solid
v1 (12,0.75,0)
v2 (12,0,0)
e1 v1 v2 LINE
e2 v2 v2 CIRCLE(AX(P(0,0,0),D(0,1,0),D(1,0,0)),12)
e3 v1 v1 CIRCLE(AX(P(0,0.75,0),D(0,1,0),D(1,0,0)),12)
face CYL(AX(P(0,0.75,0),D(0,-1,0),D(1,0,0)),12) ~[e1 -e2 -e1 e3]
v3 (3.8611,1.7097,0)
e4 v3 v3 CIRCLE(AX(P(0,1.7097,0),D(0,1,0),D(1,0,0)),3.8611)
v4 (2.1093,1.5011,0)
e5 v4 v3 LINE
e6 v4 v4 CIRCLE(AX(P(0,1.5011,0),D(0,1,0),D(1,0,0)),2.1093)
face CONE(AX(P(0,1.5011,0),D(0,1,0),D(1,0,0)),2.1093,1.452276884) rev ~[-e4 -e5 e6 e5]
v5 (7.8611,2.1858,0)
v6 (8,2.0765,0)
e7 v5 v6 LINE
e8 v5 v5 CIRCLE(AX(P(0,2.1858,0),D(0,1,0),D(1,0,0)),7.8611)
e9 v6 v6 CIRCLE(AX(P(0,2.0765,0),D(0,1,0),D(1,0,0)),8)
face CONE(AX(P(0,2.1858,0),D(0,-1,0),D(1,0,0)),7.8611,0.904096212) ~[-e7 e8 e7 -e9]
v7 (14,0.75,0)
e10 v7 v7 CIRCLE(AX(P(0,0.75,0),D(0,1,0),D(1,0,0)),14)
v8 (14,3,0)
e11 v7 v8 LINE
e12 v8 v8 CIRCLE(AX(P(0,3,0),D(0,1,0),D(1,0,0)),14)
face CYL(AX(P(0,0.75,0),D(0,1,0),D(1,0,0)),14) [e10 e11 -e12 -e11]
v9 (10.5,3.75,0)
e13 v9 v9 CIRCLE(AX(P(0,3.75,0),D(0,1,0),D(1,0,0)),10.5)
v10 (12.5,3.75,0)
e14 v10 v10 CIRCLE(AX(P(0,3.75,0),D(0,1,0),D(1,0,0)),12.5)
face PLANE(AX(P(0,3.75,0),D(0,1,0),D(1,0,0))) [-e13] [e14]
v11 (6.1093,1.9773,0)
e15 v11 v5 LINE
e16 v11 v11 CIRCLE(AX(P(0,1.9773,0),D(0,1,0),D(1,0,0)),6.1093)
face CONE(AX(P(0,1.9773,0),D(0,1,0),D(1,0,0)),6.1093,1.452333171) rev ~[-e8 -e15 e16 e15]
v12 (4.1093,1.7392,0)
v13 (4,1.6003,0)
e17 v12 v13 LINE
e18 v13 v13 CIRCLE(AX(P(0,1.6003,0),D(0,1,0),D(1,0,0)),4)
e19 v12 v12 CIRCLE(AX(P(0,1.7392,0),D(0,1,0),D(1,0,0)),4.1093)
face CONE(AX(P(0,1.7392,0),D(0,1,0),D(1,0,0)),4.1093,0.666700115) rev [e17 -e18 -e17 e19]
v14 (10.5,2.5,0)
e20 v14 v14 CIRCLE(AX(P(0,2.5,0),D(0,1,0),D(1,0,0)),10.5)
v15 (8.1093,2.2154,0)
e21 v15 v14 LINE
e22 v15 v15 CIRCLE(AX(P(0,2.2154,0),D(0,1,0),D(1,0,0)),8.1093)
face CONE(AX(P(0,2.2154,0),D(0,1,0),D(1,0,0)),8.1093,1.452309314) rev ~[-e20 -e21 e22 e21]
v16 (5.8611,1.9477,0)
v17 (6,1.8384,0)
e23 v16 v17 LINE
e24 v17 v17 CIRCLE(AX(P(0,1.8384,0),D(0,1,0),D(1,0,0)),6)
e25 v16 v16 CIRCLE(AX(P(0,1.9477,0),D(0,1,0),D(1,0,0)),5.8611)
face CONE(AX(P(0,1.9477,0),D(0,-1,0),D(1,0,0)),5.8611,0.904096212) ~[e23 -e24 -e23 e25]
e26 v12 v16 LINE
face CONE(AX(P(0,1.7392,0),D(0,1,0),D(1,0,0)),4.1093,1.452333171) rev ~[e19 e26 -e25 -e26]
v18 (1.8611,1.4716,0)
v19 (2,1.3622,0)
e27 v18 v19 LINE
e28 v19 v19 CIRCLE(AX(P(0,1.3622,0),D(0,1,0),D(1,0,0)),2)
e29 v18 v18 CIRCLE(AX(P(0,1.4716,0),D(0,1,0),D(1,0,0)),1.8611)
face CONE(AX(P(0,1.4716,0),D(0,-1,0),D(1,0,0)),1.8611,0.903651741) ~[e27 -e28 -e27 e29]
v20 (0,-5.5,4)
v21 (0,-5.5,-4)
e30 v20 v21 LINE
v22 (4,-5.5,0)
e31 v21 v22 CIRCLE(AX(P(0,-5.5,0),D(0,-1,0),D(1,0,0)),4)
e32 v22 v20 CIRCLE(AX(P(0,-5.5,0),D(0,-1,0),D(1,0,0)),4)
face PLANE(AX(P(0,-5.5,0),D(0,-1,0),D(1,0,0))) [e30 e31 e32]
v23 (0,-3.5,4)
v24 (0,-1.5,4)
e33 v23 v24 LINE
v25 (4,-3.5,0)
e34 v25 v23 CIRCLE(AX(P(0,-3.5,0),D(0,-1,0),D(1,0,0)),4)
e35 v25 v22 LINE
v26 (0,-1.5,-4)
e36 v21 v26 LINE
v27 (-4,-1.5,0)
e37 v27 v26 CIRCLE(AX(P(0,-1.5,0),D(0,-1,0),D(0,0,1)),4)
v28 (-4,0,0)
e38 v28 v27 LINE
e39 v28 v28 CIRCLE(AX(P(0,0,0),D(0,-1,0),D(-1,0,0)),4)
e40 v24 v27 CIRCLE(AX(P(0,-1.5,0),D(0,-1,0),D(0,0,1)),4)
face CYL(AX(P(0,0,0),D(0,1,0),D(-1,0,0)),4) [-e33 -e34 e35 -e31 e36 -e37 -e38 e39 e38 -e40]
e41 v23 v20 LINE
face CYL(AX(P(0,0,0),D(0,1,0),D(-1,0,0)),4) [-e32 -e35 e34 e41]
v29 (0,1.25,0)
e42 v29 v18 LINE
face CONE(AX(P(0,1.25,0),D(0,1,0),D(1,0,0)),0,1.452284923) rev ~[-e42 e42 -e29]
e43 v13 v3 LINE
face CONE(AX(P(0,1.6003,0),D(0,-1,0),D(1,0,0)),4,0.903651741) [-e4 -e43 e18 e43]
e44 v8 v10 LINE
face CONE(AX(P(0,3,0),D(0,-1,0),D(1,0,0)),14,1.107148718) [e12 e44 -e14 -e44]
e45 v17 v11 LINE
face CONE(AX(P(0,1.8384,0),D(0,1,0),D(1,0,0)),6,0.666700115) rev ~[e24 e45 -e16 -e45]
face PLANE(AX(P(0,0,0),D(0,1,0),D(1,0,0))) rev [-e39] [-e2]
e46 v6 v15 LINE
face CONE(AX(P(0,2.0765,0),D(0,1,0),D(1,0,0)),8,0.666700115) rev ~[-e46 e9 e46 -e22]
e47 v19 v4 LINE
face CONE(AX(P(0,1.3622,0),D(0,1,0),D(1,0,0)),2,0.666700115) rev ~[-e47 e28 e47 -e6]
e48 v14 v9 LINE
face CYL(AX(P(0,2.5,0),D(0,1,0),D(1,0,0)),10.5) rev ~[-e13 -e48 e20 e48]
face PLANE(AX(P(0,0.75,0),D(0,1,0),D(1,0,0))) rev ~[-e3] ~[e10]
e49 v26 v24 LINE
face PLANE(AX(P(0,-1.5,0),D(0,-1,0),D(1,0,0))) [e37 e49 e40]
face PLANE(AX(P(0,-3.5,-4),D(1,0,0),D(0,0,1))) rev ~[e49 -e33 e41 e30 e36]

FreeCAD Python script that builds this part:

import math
import FreeCAD as App
import Part
import Sketcher

V = App.Vector
Q = App.Units.Quantity


def add_polygon(sketch, points):
    """Adds a closed chain of lines whose ends are joined by coincident constraints."""
    first, n = sketch.GeometryCount, len(points)
    for a, b in zip(points, points[1:] + points[:1]):
        sketch.addGeometry(Part.LineSegment(App.Vector(*a, 0), App.Vector(*b, 0)), False)
    for i in range(n):
        sketch.addConstraint(Sketcher.Constraint("Coincident", first + i, 2, first + (i + 1) % n, 1))

doc = App.newDocument("Part")
body = doc.addObject("PartDesign::Body", "Body")

# Sketch on XZ plane
sketch1 = body.newObject("Sketcher::SketchObject", "Sketch")
sketch1.AttachmentSupport = (doc.getObject("XZ_Plane"), [""])
sketch1.MapMode = "FlatFace"
sketch1.addGeometry(Part.Circle(V(0, 0, 0), V(0, 0, 1), 4), False)
sketch1.addConstraint(Sketcher.Constraint("Coincident", 0, 3, -1, 1))
sketch1.addConstraint(Sketcher.Constraint("Diameter", 0, 8.0))
pad1 = body.newObject("PartDesign::Pad", "Pad")
pad1.Profile = sketch1
pad1.Length = 3.5

# Sketch on XY plane
sketch2 = body.newObject("Sketcher::SketchObject", "Sketch001")
sketch2.AttachmentSupport = (doc.getObject("XY_Plane"), [""])
sketch2.MapMode = "FlatFace"
add_polygon(sketch2, [(0, 1.25), (0, 0), (12, 0), (12, 0.75), (14, 0.75), (14, 3), (12.5, 3.75), (10.5, 3.75), (10.5, 2.5), (8.11, 2.22), (8, 2.08), (7.86, 2.19), (6.11, 1.98), (6, 1.84), (5.86, 1.95), (4.11, 1.74), (4, 1.6), (3.86, 1.71), (2.11, 1.5), (2, 1.36), (1.86, 1.47)])  # lines 0-20
sketch2.addConstraint(Sketcher.Constraint("Vertical", 0))
sketch2.addConstraint(Sketcher.Constraint("Horizontal", 1))
sketch2.addConstraint(Sketcher.Constraint("Vertical", 2))
sketch2.addConstraint(Sketcher.Constraint("Horizontal", 3))
sketch2.addConstraint(Sketcher.Constraint("Vertical", 4))
sketch2.addConstraint(Sketcher.Constraint("Horizontal", 6))
sketch2.addConstraint(Sketcher.Constraint("Vertical", 7))
sketch2.addConstraint(Sketcher.Constraint("Coincident", 0, 2, -1, 1))
sketch2.addConstraint(Sketcher.Constraint("Perpendicular", 9, 10))
sketch2.addConstraint(Sketcher.Constraint("Parallel", 8, 11))
sketch2.addConstraint(Sketcher.Constraint("Perpendicular", 10, 12))
sketch2.addConstraint(Sketcher.Constraint("Perpendicular", 12, 13))
sketch2.addConstraint(Sketcher.Constraint("Parallel", 11, 14))
sketch2.addConstraint(Sketcher.Constraint("Perpendicular", 13, 15))
sketch2.addConstraint(Sketcher.Constraint("Perpendicular", 15, 16))
sketch2.addConstraint(Sketcher.Constraint("Parallel", 14, 17))
sketch2.addConstraint(Sketcher.Constraint("Perpendicular", 16, 18))
sketch2.addConstraint(Sketcher.Constraint("Perpendicular", 18, 19))
sketch2.addConstraint(Sketcher.Constraint("Parallel", 17, 20))
sketch2.addConstraint(Sketcher.Constraint("Equal", 3, 6))
sketch2.addConstraint(Sketcher.Constraint("Equal", 0, 7))
sketch2.addConstraint(Sketcher.Constraint("Equal", 9, 10))
sketch2.addConstraint(Sketcher.Constraint("Equal", 10, 12))
sketch2.addConstraint(Sketcher.Constraint("Equal", 12, 13))
sketch2.addConstraint(Sketcher.Constraint("Equal", 11, 14))
sketch2.addConstraint(Sketcher.Constraint("Equal", 13, 15))
sketch2.addConstraint(Sketcher.Constraint("Equal", 15, 16))
sketch2.addConstraint(Sketcher.Constraint("Equal", 14, 17))
sketch2.addConstraint(Sketcher.Constraint("Equal", 16, 18))
sketch2.addConstraint(Sketcher.Constraint("Equal", 18, 19))
sketch2.addConstraint(Sketcher.Constraint("DistanceX", 1, 1, 1, 2, 12.0))
sketch2.addConstraint(Sketcher.Constraint("DistanceX", 3, 1, 3, 2, 2.0))
sketch2.addConstraint(Sketcher.Constraint("DistanceY", -1, 1, 4, 2, 3.0))
sketch2.addConstraint(Sketcher.Constraint("DistanceX", -1, 1, 18, 2, 2.0))
sketch2.addConstraint(Sketcher.Constraint("DistanceY", 2, 2, 5, 2, 3.0))
sketch2.addConstraint(Sketcher.Constraint("DistanceX", 11, 2, 8, 2, 2.0))
sketch2.addConstraint(Sketcher.Constraint("DistanceY", 0, 2, 0, 1, 1.25))
sketch2.addConstraint(Sketcher.Constraint("DistanceY", 2, 1, 2, 2, 0.75))
sketch2.addConstraint(Sketcher.Constraint("DistanceX", 5, 2, 4, 2, 1.5))
sketch2.addConstraint(Sketcher.Constraint("Angle", 9, Q("-128.199 deg")))
sketch2.addConstraint(Sketcher.Constraint("DistanceX", -1, 1, 10, 2, 7.861))
revolution = body.newObject("PartDesign::Revolution", "Revolution")
revolution.Profile = sketch2
revolution.ReferenceAxis = (sketch2, ["V_Axis"])
revolution.Angle = 360

# Sketch on XZ plane
sketch3 = body.newObject("Sketcher::SketchObject", "Sketch002")
sketch3.AttachmentSupport = (doc.getObject("XZ_Plane"), [""])
sketch3.MapMode = "FlatFace"
sketch3.AttachmentOffset = App.Placement(V(0, 0, 3.5), App.Rotation())
sketch3.addGeometry(Part.ArcOfCircle(Part.Circle(V(0, 0, 0), V(0, 0, 1), 4), math.radians(-90), math.radians(90)), False)
sketch3.addGeometry(Part.LineSegment(V(0, 4, 0), V(0, -4, 0)), False)
sketch3.addConstraint(Sketcher.Constraint("Coincident", 0, 1, 1, 2))
sketch3.addConstraint(Sketcher.Constraint("Coincident", 1, 1, 0, 2))
sketch3.addConstraint(Sketcher.Constraint("Vertical", 1))
sketch3.addConstraint(Sketcher.Constraint("Coincident", 0, 3, -1, 1))
sketch3.addConstraint(Sketcher.Constraint("PointOnObject", 0, 1, -2))
sketch3.addConstraint(Sketcher.Constraint("Radius", 0, 4.0))
pad2 = body.newObject("PartDesign::Pad", "Pad001")
pad2.Profile = sketch3
pad2.Length = 2

# Sketch on XZ plane
sketch4 = body.newObject("Sketcher::SketchObject", "Sketch003")
sketch4.AttachmentSupport = (doc.getObject("XZ_Plane"), [""])
sketch4.MapMode = "FlatFace"
sketch4.AttachmentOffset = App.Placement(V(0, 0, 3.5), App.Rotation())
sketch4.addGeometry(Part.ArcOfCircle(Part.Circle(V(0, 0, 0), V(0, 0, 1), 4), math.radians(90), math.radians(270)), False)
sketch4.addGeometry(Part.LineSegment(V(0, -4, 0), V(0, 4, 0)), False)
sketch4.addConstraint(Sketcher.Constraint("Coincident", 0, 1, 1, 2))
sketch4.addConstraint(Sketcher.Constraint("Coincident", 1, 1, 0, 2))
sketch4.addConstraint(Sketcher.Constraint("Vertical", 1))
sketch4.addConstraint(Sketcher.Constraint("Coincident", 0, 3, -1, 1))
sketch4.addConstraint(Sketcher.Constraint("PointOnObject", 0, 1, -2))
sketch4.addConstraint(Sketcher.Constraint("Radius", 0, 4.0))
pocket1 = body.newObject("PartDesign::Pocket", "Pocket")
pocket1.Profile = sketch4
pocket1.Length = 2

doc.recompute()
